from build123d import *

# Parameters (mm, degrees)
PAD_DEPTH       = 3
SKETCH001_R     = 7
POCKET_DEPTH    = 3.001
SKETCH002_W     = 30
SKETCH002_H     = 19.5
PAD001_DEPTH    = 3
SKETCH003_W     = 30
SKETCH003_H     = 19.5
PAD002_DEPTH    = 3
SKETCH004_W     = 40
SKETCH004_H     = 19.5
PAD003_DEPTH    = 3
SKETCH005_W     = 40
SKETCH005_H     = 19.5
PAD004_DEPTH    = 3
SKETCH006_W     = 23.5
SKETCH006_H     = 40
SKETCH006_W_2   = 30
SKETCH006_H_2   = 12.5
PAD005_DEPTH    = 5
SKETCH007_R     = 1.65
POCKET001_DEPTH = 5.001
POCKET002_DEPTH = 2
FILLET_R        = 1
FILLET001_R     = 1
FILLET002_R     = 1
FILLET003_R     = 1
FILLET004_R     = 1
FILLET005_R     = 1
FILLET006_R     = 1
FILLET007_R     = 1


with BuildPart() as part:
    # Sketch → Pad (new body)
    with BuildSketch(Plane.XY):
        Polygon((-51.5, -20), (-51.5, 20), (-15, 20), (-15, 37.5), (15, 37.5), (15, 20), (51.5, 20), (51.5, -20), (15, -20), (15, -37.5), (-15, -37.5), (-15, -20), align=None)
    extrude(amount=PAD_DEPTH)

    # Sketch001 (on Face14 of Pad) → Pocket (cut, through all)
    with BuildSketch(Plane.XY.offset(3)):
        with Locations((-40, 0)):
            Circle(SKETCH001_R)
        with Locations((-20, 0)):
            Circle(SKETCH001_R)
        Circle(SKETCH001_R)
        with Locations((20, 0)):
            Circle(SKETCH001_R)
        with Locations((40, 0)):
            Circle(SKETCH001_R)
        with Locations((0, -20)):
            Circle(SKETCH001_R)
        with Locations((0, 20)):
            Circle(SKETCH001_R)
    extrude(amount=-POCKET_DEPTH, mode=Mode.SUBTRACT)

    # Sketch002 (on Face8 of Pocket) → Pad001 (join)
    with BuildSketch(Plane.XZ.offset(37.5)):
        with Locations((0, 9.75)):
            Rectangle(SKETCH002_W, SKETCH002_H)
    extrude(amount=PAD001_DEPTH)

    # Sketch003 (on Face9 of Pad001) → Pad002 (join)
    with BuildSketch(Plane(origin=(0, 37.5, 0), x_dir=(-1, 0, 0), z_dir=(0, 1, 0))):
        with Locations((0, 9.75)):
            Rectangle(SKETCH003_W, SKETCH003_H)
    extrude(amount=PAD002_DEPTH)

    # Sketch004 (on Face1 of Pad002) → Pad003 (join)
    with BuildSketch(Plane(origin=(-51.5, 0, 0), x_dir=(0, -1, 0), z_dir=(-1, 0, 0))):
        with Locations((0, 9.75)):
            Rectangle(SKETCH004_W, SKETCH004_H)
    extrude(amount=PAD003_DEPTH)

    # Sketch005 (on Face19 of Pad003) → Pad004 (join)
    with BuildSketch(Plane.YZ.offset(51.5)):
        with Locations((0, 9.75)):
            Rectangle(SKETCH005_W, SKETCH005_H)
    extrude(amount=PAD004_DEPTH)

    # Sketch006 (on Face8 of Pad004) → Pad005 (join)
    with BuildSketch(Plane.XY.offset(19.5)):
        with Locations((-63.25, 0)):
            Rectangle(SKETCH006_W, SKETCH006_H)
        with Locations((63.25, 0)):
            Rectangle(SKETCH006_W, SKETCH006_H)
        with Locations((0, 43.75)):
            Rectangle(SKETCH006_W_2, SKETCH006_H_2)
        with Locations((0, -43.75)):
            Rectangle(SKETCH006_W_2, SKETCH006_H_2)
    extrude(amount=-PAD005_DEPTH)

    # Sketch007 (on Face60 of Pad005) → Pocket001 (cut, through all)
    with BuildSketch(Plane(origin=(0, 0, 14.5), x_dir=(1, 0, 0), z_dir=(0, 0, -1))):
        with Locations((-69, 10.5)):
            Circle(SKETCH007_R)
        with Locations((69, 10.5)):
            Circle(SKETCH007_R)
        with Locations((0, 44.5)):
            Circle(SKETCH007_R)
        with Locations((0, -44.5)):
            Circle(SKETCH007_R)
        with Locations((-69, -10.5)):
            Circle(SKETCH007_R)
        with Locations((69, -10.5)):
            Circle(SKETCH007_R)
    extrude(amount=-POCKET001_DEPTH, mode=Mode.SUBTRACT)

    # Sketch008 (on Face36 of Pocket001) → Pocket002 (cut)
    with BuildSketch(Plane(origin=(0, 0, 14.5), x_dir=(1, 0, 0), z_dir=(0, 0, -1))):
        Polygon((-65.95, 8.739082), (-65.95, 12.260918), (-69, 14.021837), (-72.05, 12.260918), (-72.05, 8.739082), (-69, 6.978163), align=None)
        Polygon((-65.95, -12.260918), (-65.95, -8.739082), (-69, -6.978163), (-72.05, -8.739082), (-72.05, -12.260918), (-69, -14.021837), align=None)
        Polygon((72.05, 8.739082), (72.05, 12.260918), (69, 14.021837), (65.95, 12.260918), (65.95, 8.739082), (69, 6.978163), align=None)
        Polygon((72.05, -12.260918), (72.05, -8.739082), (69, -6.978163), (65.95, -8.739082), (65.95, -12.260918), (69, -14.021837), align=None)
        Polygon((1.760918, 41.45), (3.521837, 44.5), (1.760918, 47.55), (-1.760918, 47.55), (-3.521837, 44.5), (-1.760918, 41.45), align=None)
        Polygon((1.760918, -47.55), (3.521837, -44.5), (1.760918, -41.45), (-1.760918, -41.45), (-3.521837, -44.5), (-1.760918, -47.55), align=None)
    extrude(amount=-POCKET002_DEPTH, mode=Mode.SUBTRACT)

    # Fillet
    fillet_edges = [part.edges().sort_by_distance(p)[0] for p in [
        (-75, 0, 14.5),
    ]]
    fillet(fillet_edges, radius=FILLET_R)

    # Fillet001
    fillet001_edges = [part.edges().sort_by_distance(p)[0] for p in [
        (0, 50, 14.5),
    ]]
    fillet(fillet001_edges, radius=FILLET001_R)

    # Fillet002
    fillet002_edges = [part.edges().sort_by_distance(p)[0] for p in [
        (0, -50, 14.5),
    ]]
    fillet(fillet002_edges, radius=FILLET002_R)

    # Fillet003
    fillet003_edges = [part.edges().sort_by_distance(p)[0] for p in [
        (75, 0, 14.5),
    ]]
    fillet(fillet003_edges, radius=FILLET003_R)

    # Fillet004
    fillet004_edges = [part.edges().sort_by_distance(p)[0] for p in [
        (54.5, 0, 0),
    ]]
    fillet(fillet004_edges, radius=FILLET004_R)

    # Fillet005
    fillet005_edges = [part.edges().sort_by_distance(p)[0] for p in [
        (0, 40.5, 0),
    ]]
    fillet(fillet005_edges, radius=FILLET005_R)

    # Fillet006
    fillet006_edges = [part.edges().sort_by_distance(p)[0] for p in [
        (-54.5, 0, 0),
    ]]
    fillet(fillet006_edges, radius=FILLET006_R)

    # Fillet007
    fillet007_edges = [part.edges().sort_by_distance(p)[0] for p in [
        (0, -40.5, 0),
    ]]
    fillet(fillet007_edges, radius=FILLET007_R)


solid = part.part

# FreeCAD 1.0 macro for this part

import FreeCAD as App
import Part
import Sketcher

V = App.Vector
Q = App.Units.Quantity


def edges_at(feature, points):
    """Names of the edges that pass closest to the given points."""
    edges = feature.Shape.Edges
    near = lambda p: min(range(len(edges)), key=lambda i: edges[i].distToShape(Part.Vertex(*p))[0])
    return sorted({f"Edge{near(p) + 1}" for p in points})


def add_polygon(sketch, points):
    """Adds a closed chain of lines whose ends are joined by coincident constraints."""
    first, n = sketch.GeometryCount, len(points)
    for a, b in zip(points, points[1:] + points[:1]):
        sketch.addGeometry(Part.LineSegment(App.Vector(*a, 0), App.Vector(*b, 0)), False)
    for i in range(n):
        sketch.addConstraint(Sketcher.Constraint("Coincident", first + i, 2, first + (i + 1) % n, 1))

doc = App.newDocument("Part")
body = doc.addObject("PartDesign::Body", "Body")

sketch1 = body.newObject("Sketcher::SketchObject", "Sketch")
sketch1.AttachmentSupport = (doc.getObject("XY_Plane"), [""])
sketch1.MapMode = "FlatFace"
add_polygon(sketch1, [(-51.5, 20), (-51.5, -20), (-15, -20), (-15, -37.5), (15, -37.5), (15, -20), (51.5, -20), (51.5, 20), (15, 20), (15, 37.5), (-15, 37.5), (-15, 20)])
sketch1.addConstraint([
    Sketcher.Constraint("Vertical", 0),
    Sketcher.Constraint("Horizontal", 1),
    Sketcher.Constraint("Vertical", 2),
    Sketcher.Constraint("Horizontal", 3),
    Sketcher.Constraint("Vertical", 4),
    Sketcher.Constraint("Horizontal", 5),
    Sketcher.Constraint("Vertical", 6),
    Sketcher.Constraint("Horizontal", 7),
    Sketcher.Constraint("Vertical", 8),
    Sketcher.Constraint("Horizontal", 9),
    Sketcher.Constraint("Vertical", 10),
    Sketcher.Constraint("Horizontal", 11),
    Sketcher.Constraint("Symmetric", 0, 2, 6, 2, -1, 1),
    Sketcher.Constraint("Symmetric", 2, 2, 8, 2, -1, 1),
    Sketcher.Constraint("Symmetric", 4, 2, 10, 2, -1, 1),
    Sketcher.Constraint("Symmetric", 1, 2, 4, 2, -2),
    Sketcher.Constraint("DistanceX", 3, 1, 3, 2, 30.0),
    Sketcher.Constraint("DistanceY", 0, 2, 0, 1, 40.0),
    Sketcher.Constraint("DistanceX", 1, 1, 1, 2, 36.5),
    Sketcher.Constraint("DistanceY", 2, 2, 2, 1, 17.5),
])
pad1 = body.newObject("PartDesign::Pad", "Pad")
pad1.Profile = sketch1
pad1.Length = 3

sketch2 = body.newObject("Sketcher::SketchObject", "Sketch001")
sketch2.AttachmentSupport = (doc.getObject("XY_Plane"), [""])
sketch2.MapMode = "FlatFace"
sketch2.AttachmentOffset = App.Placement(V(0, 0, 3), App.Rotation())
sketch2.addGeometry([
    Part.Circle(V(-40, 0, 0), V(0, 0, 1), 7),
    Part.Circle(V(-20, 0, 0), V(0, 0, 1), 7),
    Part.Circle(V(0, 0, 0), V(0, 0, 1), 7),
    Part.Circle(V(20, 0, 0), V(0, 0, 1), 7),
    Part.Circle(V(40, 0, 0), V(0, 0, 1), 7),
    Part.Circle(V(0, -20, 0), V(0, 0, 1), 7),
    Part.Circle(V(0, 20, 0), V(0, 0, 1), 7),
], False)
sketch2.addConstraint([
    Sketcher.Constraint("Coincident", 2, 3, -1, 1),
    Sketcher.Constraint("Equal", 0, 1),
    Sketcher.Constraint("Equal", 1, 2),
    Sketcher.Constraint("Equal", 2, 3),
    Sketcher.Constraint("Equal", 3, 4),
    Sketcher.Constraint("Equal", 4, 5),
    Sketcher.Constraint("Equal", 5, 6),
    Sketcher.Constraint("Symmetric", 1, 3, 3, 3, -1, 1),
    Sketcher.Constraint("Symmetric", 0, 3, 4, 3, -1, 1),
    Sketcher.Constraint("Symmetric", 5, 3, 6, 3, -1, 1),
    Sketcher.Constraint("PointOnObject", 0, 3, -1),
    Sketcher.Constraint("PointOnObject", 1, 3, -1),
    Sketcher.Constraint("PointOnObject", 5, 3, -2),
    Sketcher.Constraint("Diameter", 0, 14.0),
    Sketcher.Constraint("DistanceX", 0, 3, -1, 1, 40.0),
    Sketcher.Constraint("DistanceX", 1, 3, -1, 1, 20.0),
    Sketcher.Constraint("DistanceY", 5, 3, -1, 1, 20.0),
])
pocket1 = body.newObject("PartDesign::Pocket", "Pocket")
pocket1.Profile = sketch2
pocket1.Type = "ThroughAll"

sketch3 = body.newObject("Sketcher::SketchObject", "Sketch002")
sketch3.AttachmentSupport = (doc.getObject("XZ_Plane"), [""])
sketch3.MapMode = "FlatFace"
sketch3.AttachmentOffset = App.Placement(V(0, 0, 37.5), App.Rotation())
add_polygon(sketch3, [(-15, 19.5), (-15, 0), (15, 0), (15, 19.5)])
sketch3.addConstraint([
    Sketcher.Constraint("Vertical", 0),
    Sketcher.Constraint("Horizontal", 1),
    Sketcher.Constraint("Vertical", 2),
    Sketcher.Constraint("Horizontal", 3),
    Sketcher.Constraint("Symmetric", 0, 2, 1, 2, -1, 1),
    Sketcher.Constraint("DistanceX", 1, 1, 1, 2, 30.0),
    Sketcher.Constraint("DistanceY", 0, 2, 0, 1, 19.5),
])
pad2 = body.newObject("PartDesign::Pad", "Pad001")
pad2.Profile = sketch3
pad2.Length = 3

sketch4 = body.newObject("Sketcher::SketchObject", "Sketch003")
sketch4.AttachmentSupport = (doc.getObject("XZ_Plane"), [""])
sketch4.MapMode = "FlatFace"
sketch4.AttachmentOffset = App.Placement(V(0, 0, -37.5), App.Rotation())
add_polygon(sketch4, [(15, 19.5), (15, 0), (-15, 0), (-15, 19.5)])
sketch4.addConstraint([
    Sketcher.Constraint("Vertical", 0),
    Sketcher.Constraint("Horizontal", 1),
    Sketcher.Constraint("Vertical", 2),
    Sketcher.Constraint("Horizontal", 3),
    Sketcher.Constraint("Symmetric", 0, 2, 1, 2, -1, 1),
    Sketcher.Constraint("DistanceX", 1, 2, 1, 1, 30.0),
    Sketcher.Constraint("DistanceY", 0, 2, 0, 1, 19.5),
])
pad3 = body.newObject("PartDesign::Pad", "Pad002")
pad3.Profile = sketch4
pad3.Length = 3
pad3.Reversed = True

sketch5 = body.newObject("Sketcher::SketchObject", "Sketch004")
sketch5.AttachmentSupport = (doc.getObject("YZ_Plane"), [""])
sketch5.MapMode = "FlatFace"
sketch5.AttachmentOffset = App.Placement(V(0, 0, -51.5), App.Rotation())
add_polygon(sketch5, [(20, 19.5), (20, 0), (-20, 0), (-20, 19.5)])
sketch5.addConstraint([
    Sketcher.Constraint("Vertical", 0),
    Sketcher.Constraint("Horizontal", 1),
    Sketcher.Constraint("Vertical", 2),
    Sketcher.Constraint("Horizontal", 3),
    Sketcher.Constraint("Symmetric", 0, 2, 1, 2, -1, 1),
    Sketcher.Constraint("DistanceX", 1, 2, 1, 1, 40.0),
    Sketcher.Constraint("DistanceY", 0, 2, 0, 1, 19.5),
])
pad4 = body.newObject("PartDesign::Pad", "Pad003")
pad4.Profile = sketch5
pad4.Length = 3
pad4.Reversed = True

sketch6 = body.newObject("Sketcher::SketchObject", "Sketch005")
sketch6.AttachmentSupport = (doc.getObject("YZ_Plane"), [""])
sketch6.MapMode = "FlatFace"
sketch6.AttachmentOffset = App.Placement(V(0, 0, 51.5), App.Rotation())
add_polygon(sketch6, [(-20, 19.5), (-20, 0), (20, 0), (20, 19.5)])
sketch6.addConstraint([
    Sketcher.Constraint("Vertical", 0),
    Sketcher.Constraint("Horizontal", 1),
    Sketcher.Constraint("Vertical", 2),
    Sketcher.Constraint("Horizontal", 3),
    Sketcher.Constraint("Symmetric", 0, 2, 1, 2, -1, 1),
    Sketcher.Constraint("DistanceX", 1, 1, 1, 2, 40.0),
    Sketcher.Constraint("DistanceY", 0, 2, 0, 1, 19.5),
])
pad5 = body.newObject("PartDesign::Pad", "Pad004")
pad5.Profile = sketch6
pad5.Length = 3

sketch7 = body.newObject("Sketcher::SketchObject", "Sketch006")
sketch7.AttachmentSupport = (doc.getObject("XY_Plane"), [""])
sketch7.MapMode = "FlatFace"
sketch7.AttachmentOffset = App.Placement(V(0, 0, 19.5), App.Rotation())
add_polygon(sketch7, [(-75, 20), (-75, -20), (-51.5, -20), (-51.5, 20)])
add_polygon(sketch7, [(51.5, 20), (51.5, -20), (75, -20), (75, 20)])
add_polygon(sketch7, [(-15, 50), (-15, 37.5), (15, 37.5), (15, 50)])
add_polygon(sketch7, [(-15, -37.5), (-15, -50), (15, -50), (15, -37.5)])
sketch7.addConstraint([
    Sketcher.Constraint("Vertical", 0),
    Sketcher.Constraint("Horizontal", 1),
    Sketcher.Constraint("Vertical", 2),
    Sketcher.Constraint("Horizontal", 3),
    Sketcher.Constraint("Vertical", 4),
    Sketcher.Constraint("Horizontal", 5),
    Sketcher.Constraint("Vertical", 6),
    Sketcher.Constraint("Horizontal", 7),
    Sketcher.Constraint("Vertical", 8),
    Sketcher.Constraint("Horizontal", 9),
    Sketcher.Constraint("Vertical", 10),
    Sketcher.Constraint("Horizontal", 11),
    Sketcher.Constraint("Vertical", 12),
    Sketcher.Constraint("Horizontal", 13),
    Sketcher.Constraint("Vertical", 14),
    Sketcher.Constraint("Horizontal", 15),
    Sketcher.Constraint("Symmetric", 2, 2, 4, 2, -1, 1),
    Sketcher.Constraint("Symmetric", 0, 2, 6, 2, -1, 1),
    Sketcher.Constraint("Symmetric", 10, 2, 12, 2, -1, 1),
    Sketcher.Constraint("Symmetric", 8, 2, 14, 2, -1, 1),
    Sketcher.Constraint("Horizontal", 1, 2, 4, 2),
    Sketcher.Constraint("Vertical", 11, 2, 12, 2),
    Sketcher.Constraint("DistanceX", 9, 1, 9, 2, 30.0),
    Sketcher.Constraint("DistanceY", 0, 2, 0, 1, 40.0),
    Sketcher.Constraint("DistanceX", 1, 1, 1, 2, 23.5),
    Sketcher.Constraint("DistanceY", 8, 2, 8, 1, 12.5),
    Sketcher.Constraint("DistanceX", 0, 2, -1, 1, 75.0),
    Sketcher.Constraint("DistanceY", -1, 1, 10, 2, 50.0),
])
pad6 = body.newObject("PartDesign::Pad", "Pad005")
pad6.Profile = sketch7
pad6.Length = 5
pad6.Reversed = True

sketch8 = body.newObject("Sketcher::SketchObject", "Sketch007")
sketch8.AttachmentSupport = (doc.getObject("XY_Plane"), [""])
sketch8.MapMode = "FlatFace"
sketch8.AttachmentOffset = App.Placement(V(0, 0, 14.5), App.Rotation())
sketch8.addGeometry([
    Part.Circle(V(-69, -10.5, 0), V(0, 0, 1), 1.65),
    Part.Circle(V(69, -10.5, 0), V(0, 0, 1), 1.65),
    Part.Circle(V(0, -44.5, 0), V(0, 0, 1), 1.65),
    Part.Circle(V(0, 44.5, 0), V(0, 0, 1), 1.65),
    Part.Circle(V(-69, 10.5, 0), V(0, 0, 1), 1.65),
    Part.Circle(V(69, 10.5, 0), V(0, 0, 1), 1.65),
], False)
sketch8.addConstraint([
    Sketcher.Constraint("Equal", 0, 1),
    Sketcher.Constraint("Equal", 1, 2),
    Sketcher.Constraint("Equal", 2, 3),
    Sketcher.Constraint("Equal", 3, 4),
    Sketcher.Constraint("Equal", 4, 5),
    Sketcher.Constraint("Symmetric", 2, 3, 3, 3, -1, 1),
    Sketcher.Constraint("Symmetric", 1, 3, 4, 3, -1, 1),
    Sketcher.Constraint("Symmetric", 0, 3, 5, 3, -1, 1),
    Sketcher.Constraint("Symmetric", 0, 3, 1, 3, -2),
    Sketcher.Constraint("PointOnObject", 2, 3, -2),
    Sketcher.Constraint("Diameter", 0, 3.3),
    Sketcher.Constraint("DistanceX", 0, 3, -1, 1, 69.0),
    Sketcher.Constraint("DistanceY", 2, 3, 0, 3, 34.0),
    Sketcher.Constraint("DistanceY", 0, 3, 3, 3, 55.0),
])
pocket2 = body.newObject("PartDesign::Pocket", "Pocket001")
pocket2.Profile = sketch8
pocket2.Type = "ThroughAll"
pocket2.Reversed = True

sketch9 = body.newObject("Sketcher::SketchObject", "Sketch008")
sketch9.AttachmentSupport = (doc.getObject("XY_Plane"), [""])
sketch9.MapMode = "FlatFace"
sketch9.AttachmentOffset = App.Placement(V(0, 0, 14.5), App.Rotation())
add_polygon(sketch9, [(-65.95, -8.739082), (-65.95, -12.260918), (-69, -14.021837), (-72.05, -12.260918), (-72.05, -8.739082), (-69, -6.978163)])
add_polygon(sketch9, [(-65.95, 12.260918), (-65.95, 8.739082), (-69, 6.978163), (-72.05, 8.739082), (-72.05, 12.260918), (-69, 14.021837)])
add_polygon(sketch9, [(72.05, -8.739082), (72.05, -12.260918), (69, -14.021837), (65.95, -12.260918), (65.95, -8.739082), (69, -6.978163)])
add_polygon(sketch9, [(72.05, 12.260918), (72.05, 8.739082), (69, 6.978163), (65.95, 8.739082), (65.95, 12.260918), (69, 14.021837)])
add_polygon(sketch9, [(1.760918, -41.45), (3.521837, -44.5), (1.760918, -47.55), (-1.760918, -47.55), (-3.521837, -44.5), (-1.760918, -41.45)])
add_polygon(sketch9, [(1.760918, 47.55), (3.521837, 44.5), (1.760918, 41.45), (-1.760918, 41.45), (-3.521837, 44.5), (-1.760918, 47.55)])
sketch9.addConstraint([
    Sketcher.Constraint("Vertical", 0),
    Sketcher.Constraint("Vertical", 3),
    Sketcher.Constraint("Vertical", 6),
    Sketcher.Constraint("Vertical", 9),
    Sketcher.Constraint("Vertical", 12),
    Sketcher.Constraint("Vertical", 15),
    Sketcher.Constraint("Vertical", 18),
    Sketcher.Constraint("Vertical", 21),
    Sketcher.Constraint("Horizontal", 26),
    Sketcher.Constraint("Horizontal", 29),
    Sketcher.Constraint("Horizontal", 32),
    Sketcher.Constraint("Horizontal", 35),
    Sketcher.Constraint("Symmetric", 9, 2, 12, 2, -1, 1),
    Sketcher.Constraint("Symmetric", 10, 2, 13, 2, -1, 1),
    Sketcher.Constraint("Symmetric", 11, 2, 14, 2, -1, 1),
    Sketcher.Constraint("Symmetric", 7, 2, 16, 2, -1, 1),
    Sketcher.Constraint("Symmetric", 3, 2, 18, 2, -1, 1),
    Sketcher.Constraint("Symmetric", 4, 2, 19, 2, -1, 1),
    Sketcher.Constraint("Symmetric", 5, 2, 20, 2, -1, 1),
    Sketcher.Constraint("Symmetric", 1, 2, 22, 2, -1, 1),
    Sketcher.Constraint("Symmetric", 27, 2, 30, 2, -1, 1),
    Sketcher.Constraint("Symmetric", 28, 2, 31, 2, -1, 1),
    Sketcher.Constraint("Symmetric", 24, 2, 33, 2, -1, 1),
    Sketcher.Constraint("Symmetric", 25, 2, 34, 2, -1, 1),
    Sketcher.Constraint("Symmetric", 2, 2, 12, 2, -2),
    Sketcher.Constraint("Symmetric", 1, 2, 13, 2, -2),
    Sketcher.Constraint("Symmetric", 0, 2, 14, 2, -2),
    Sketcher.Constraint("Symmetric", 4, 2, 16, 2, -2),
    Sketcher.Constraint("Symmetric", 24, 2, 27, 2, -2),
    Sketcher.Constraint("Parallel", 1, 4),
    Sketcher.Constraint("Parallel", 2, 5),
    Sketcher.Constraint("Parallel", 4, 7),
    Sketcher.Constraint("Parallel", 5, 8),
    Sketcher.Constraint("Parallel", 7, 10),
    Sketcher.Constraint("Parallel", 13, 16),
    Sketcher.Constraint("Parallel", 14, 17),
    Sketcher.Constraint("Parallel", 19, 22),
    Sketcher.Constraint("Parallel", 20, 23),
    Sketcher.Constraint("Perpendicular", 22, 24),
    Sketcher.Constraint("Perpendicular", 23, 25),
    Sketcher.Constraint("Parallel", 24, 27),
    Sketcher.Constraint("Parallel", 25, 28),
    Sketcher.Constraint("Parallel", 27, 30),
    Sketcher.Constraint("Parallel", 30, 33),
    Sketcher.Constraint("Horizontal", 0, 2, 2, 2),
    Sketcher.Constraint("Horizontal", 3, 2, 5, 2),
    Sketcher.Constraint("Vertical", 26, 2, 28, 2),
    Sketcher.Constraint("Equal", 35, 0),
    Sketcher.Constraint("Equal", 23, 24),
    Sketcher.Constraint("Angle", 1, Q("-149.99999 deg")),
    Sketcher.Constraint("DistanceX", 1, 2, -1, 1, 69.0),
    Sketcher.Constraint("DistanceY", 0, 2, 6, 2, 21.0),
    Sketcher.Constraint("DistanceY", 24, 2, -1, 1, 44.5),
    Sketcher.Constraint("DistanceX", 2, 2, 0, 2, 6.1),
    Sketcher.Constraint("DistanceX", 26, 2, 26, 1, 3.521836),
])
pocket3 = body.newObject("PartDesign::Pocket", "Pocket002")
pocket3.Profile = sketch9
pocket3.Length = 2
pocket3.Reversed = True
doc.recompute()

fillet = body.newObject("PartDesign::Fillet", "Fillet")
fillet.Base = (pocket3, edges_at(pocket3, [(-75, 0, 14.5)]))
fillet.Radius = 1
doc.recompute()

fillet2 = body.newObject("PartDesign::Fillet", "Fillet001")
fillet2.Base = (fillet, edges_at(fillet, [(0, 50, 14.5)]))
fillet2.Radius = 1
doc.recompute()

fillet3 = body.newObject("PartDesign::Fillet", "Fillet002")
fillet3.Base = (fillet2, edges_at(fillet2, [(0, -50, 14.5)]))
fillet3.Radius = 1
doc.recompute()

fillet4 = body.newObject("PartDesign::Fillet", "Fillet003")
fillet4.Base = (fillet3, edges_at(fillet3, [(75, 0, 14.5)]))
fillet4.Radius = 1
doc.recompute()

fillet5 = body.newObject("PartDesign::Fillet", "Fillet004")
fillet5.Base = (fillet4, edges_at(fillet4, [(54.5, 0, 0)]))
fillet5.Radius = 1
doc.recompute()

fillet6 = body.newObject("PartDesign::Fillet", "Fillet005")
fillet6.Base = (fillet5, edges_at(fillet5, [(0, 40.5, 0)]))
fillet6.Radius = 1
doc.recompute()

fillet7 = body.newObject("PartDesign::Fillet", "Fillet006")
fillet7.Base = (fillet6, edges_at(fillet6, [(-54.5, 0, 0)]))
fillet7.Radius = 1
doc.recompute()

fillet8 = body.newObject("PartDesign::Fillet", "Fillet007")
fillet8.Base = (fillet7, edges_at(fillet7, [(0, -40.5, 0)]))
fillet8.Radius = 1

doc.recompute()
